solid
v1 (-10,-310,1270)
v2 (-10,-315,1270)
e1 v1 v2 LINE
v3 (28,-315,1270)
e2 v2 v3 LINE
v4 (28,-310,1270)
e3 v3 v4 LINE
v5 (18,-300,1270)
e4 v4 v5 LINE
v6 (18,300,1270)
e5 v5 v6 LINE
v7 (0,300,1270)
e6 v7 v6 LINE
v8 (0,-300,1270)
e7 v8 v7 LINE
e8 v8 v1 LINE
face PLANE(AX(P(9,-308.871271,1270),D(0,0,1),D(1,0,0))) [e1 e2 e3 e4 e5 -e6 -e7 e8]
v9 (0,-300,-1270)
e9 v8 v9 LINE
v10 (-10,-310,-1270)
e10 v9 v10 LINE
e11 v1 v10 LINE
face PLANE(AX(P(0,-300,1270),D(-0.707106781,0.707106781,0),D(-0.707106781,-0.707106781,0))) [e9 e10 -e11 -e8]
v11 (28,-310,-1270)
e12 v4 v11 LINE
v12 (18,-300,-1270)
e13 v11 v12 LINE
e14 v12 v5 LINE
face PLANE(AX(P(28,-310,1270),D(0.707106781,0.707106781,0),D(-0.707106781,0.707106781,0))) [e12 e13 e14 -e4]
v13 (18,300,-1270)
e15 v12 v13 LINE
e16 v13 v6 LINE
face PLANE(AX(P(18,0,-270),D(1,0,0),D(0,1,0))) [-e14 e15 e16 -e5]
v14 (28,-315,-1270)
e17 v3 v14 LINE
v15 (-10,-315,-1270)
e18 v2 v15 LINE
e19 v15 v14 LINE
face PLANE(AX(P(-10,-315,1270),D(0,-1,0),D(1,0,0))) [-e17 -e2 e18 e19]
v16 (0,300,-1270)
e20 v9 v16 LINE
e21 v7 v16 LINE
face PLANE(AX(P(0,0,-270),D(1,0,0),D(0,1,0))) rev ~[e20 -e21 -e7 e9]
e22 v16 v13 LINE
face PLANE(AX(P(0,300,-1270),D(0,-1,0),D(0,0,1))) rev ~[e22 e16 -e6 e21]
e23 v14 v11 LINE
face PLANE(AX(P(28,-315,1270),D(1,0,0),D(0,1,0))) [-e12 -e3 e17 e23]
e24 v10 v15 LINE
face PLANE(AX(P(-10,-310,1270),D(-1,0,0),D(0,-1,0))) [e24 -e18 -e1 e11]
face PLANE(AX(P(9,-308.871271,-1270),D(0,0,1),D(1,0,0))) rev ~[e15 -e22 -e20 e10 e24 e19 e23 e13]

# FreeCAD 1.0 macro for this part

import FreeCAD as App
import Part
import Sketcher

V = App.Vector


def add_polygon(sketch, points):
    """Adds a closed chain of lines whose ends are joined by coincident constraints."""
    first, n = sketch.GeometryCount, len(points)
    for a, b in zip(points, points[1:] + points[:1]):
        sketch.addGeometry(Part.LineSegment(App.Vector(*a, 0), App.Vector(*b, 0)), False)
    for i in range(n):
        sketch.addConstraint(Sketcher.Constraint("Coincident", first + i, 2, first + (i + 1) % n, 1))

doc = App.newDocument("Part")
body = doc.addObject("PartDesign::Body", "Body")

# Sketch on YZ plane
sketch1 = doc.addObject("Sketcher::SketchObject", "Sketch")
body.addObject(sketch1)
sketch1.AttachmentSupport = (doc.YZ_Plane, [""])
sketch1.MapMode = "FlatFace"
add_polygon(sketch1, [(-300, 1270), (-300, 730), (300, 730), (300, 1270)])  # lines 0-3
sketch1.addConstraint(Sketcher.Constraint("Vertical", 0))
sketch1.addConstraint(Sketcher.Constraint("Horizontal", 1))
sketch1.addConstraint(Sketcher.Constraint("Vertical", 2))
sketch1.addConstraint(Sketcher.Constraint("Horizontal", 3))
sketch1.addConstraint(Sketcher.Constraint("DistanceX", 1, 1, 1, 2, 600.0))
sketch1.addConstraint(Sketcher.Constraint("DistanceY", 0, 2, 0, 1, 540.0))
sketch1.addConstraint(Sketcher.Constraint("DistanceX", 0, 2, -1, 1, 300.0))
sketch1.addConstraint(Sketcher.Constraint("DistanceY", -1, 1, 0, 2, 730.0))
pad1 = doc.addObject("PartDesign::Pad", "Pad")
body.addObject(pad1)
pad1.Profile = sketch1
pad1.Length = 18

# Sketch on YZ plane
sketch2 = doc.addObject("Sketcher::SketchObject", "Sketch001")
body.addObject(sketch2)
sketch2.AttachmentSupport = (doc.YZ_Plane, [""])
sketch2.MapMode = "FlatFace"
add_polygon(sketch2, [(-300, 730), (-300, -1270), (300, -1270), (300, 730)])  # lines 0-3
sketch2.addConstraint(Sketcher.Constraint("Vertical", 0))
sketch2.addConstraint(Sketcher.Constraint("Horizontal", 1))
sketch2.addConstraint(Sketcher.Constraint("Vertical", 2))
sketch2.addConstraint(Sketcher.Constraint("Horizontal", 3))
sketch2.addConstraint(Sketcher.Constraint("DistanceX", 1, 1, 1, 2, 600.0))
sketch2.addConstraint(Sketcher.Constraint("DistanceY", 0, 2, 0, 1, 2000.0))
sketch2.addConstraint(Sketcher.Constraint("DistanceX", 0, 2, -1, 1, 300.0))
sketch2.addConstraint(Sketcher.Constraint("DistanceY", 0, 2, -1, 1, 1270.0))
pad2 = doc.addObject("PartDesign::Pad", "Pad001")
body.addObject(pad2)
pad2.Profile = sketch2
pad2.Length = 18

# Sketch on XY plane
sketch3 = doc.addObject("Sketcher::SketchObject", "Sketch002")
body.addObject(sketch3)
sketch3.AttachmentSupport = (doc.XY_Plane, [""])
sketch3.MapMode = "FlatFace"
sketch3.AttachmentOffset = App.Placement(V(0, 0, 1270), App.Rotation())
add_polygon(sketch3, [(18, -300), (0, -300), (-10, -310), (-10, -315), (28, -315), (28, -310)])  # lines 0-5
sketch3.addConstraint(Sketcher.Constraint("Horizontal", 0))
sketch3.addConstraint(Sketcher.Constraint("Vertical", 2))
sketch3.addConstraint(Sketcher.Constraint("Horizontal", 3))
sketch3.addConstraint(Sketcher.Constraint("Vertical", 4))
sketch3.addConstraint(Sketcher.Constraint("PointOnObject", 0, 2, -2))
sketch3.addConstraint(Sketcher.Constraint("Perpendicular", 1, 5))
sketch3.addConstraint(Sketcher.Constraint("Horizontal", 1, 2, 4, 2))
sketch3.addConstraint(Sketcher.Constraint("Equal", 1, 5))
sketch3.addConstraint(Sketcher.Constraint("DistanceX", 0, 2, 0, 1, 18.0))
sketch3.addConstraint(Sketcher.Constraint("DistanceX", 3, 1, 3, 2, 38.0))
sketch3.addConstraint(Sketcher.Constraint("DistanceY", 2, 2, 2, 1, 5.0))
sketch3.addConstraint(Sketcher.Constraint("DistanceY", 0, 2, -1, 1, 300.0))
pad3 = doc.addObject("PartDesign::Pad", "Pad002")
body.addObject(pad3)
pad3.Profile = sketch3
pad3.Length = 2540
pad3.Reversed = True

doc.recompute()
